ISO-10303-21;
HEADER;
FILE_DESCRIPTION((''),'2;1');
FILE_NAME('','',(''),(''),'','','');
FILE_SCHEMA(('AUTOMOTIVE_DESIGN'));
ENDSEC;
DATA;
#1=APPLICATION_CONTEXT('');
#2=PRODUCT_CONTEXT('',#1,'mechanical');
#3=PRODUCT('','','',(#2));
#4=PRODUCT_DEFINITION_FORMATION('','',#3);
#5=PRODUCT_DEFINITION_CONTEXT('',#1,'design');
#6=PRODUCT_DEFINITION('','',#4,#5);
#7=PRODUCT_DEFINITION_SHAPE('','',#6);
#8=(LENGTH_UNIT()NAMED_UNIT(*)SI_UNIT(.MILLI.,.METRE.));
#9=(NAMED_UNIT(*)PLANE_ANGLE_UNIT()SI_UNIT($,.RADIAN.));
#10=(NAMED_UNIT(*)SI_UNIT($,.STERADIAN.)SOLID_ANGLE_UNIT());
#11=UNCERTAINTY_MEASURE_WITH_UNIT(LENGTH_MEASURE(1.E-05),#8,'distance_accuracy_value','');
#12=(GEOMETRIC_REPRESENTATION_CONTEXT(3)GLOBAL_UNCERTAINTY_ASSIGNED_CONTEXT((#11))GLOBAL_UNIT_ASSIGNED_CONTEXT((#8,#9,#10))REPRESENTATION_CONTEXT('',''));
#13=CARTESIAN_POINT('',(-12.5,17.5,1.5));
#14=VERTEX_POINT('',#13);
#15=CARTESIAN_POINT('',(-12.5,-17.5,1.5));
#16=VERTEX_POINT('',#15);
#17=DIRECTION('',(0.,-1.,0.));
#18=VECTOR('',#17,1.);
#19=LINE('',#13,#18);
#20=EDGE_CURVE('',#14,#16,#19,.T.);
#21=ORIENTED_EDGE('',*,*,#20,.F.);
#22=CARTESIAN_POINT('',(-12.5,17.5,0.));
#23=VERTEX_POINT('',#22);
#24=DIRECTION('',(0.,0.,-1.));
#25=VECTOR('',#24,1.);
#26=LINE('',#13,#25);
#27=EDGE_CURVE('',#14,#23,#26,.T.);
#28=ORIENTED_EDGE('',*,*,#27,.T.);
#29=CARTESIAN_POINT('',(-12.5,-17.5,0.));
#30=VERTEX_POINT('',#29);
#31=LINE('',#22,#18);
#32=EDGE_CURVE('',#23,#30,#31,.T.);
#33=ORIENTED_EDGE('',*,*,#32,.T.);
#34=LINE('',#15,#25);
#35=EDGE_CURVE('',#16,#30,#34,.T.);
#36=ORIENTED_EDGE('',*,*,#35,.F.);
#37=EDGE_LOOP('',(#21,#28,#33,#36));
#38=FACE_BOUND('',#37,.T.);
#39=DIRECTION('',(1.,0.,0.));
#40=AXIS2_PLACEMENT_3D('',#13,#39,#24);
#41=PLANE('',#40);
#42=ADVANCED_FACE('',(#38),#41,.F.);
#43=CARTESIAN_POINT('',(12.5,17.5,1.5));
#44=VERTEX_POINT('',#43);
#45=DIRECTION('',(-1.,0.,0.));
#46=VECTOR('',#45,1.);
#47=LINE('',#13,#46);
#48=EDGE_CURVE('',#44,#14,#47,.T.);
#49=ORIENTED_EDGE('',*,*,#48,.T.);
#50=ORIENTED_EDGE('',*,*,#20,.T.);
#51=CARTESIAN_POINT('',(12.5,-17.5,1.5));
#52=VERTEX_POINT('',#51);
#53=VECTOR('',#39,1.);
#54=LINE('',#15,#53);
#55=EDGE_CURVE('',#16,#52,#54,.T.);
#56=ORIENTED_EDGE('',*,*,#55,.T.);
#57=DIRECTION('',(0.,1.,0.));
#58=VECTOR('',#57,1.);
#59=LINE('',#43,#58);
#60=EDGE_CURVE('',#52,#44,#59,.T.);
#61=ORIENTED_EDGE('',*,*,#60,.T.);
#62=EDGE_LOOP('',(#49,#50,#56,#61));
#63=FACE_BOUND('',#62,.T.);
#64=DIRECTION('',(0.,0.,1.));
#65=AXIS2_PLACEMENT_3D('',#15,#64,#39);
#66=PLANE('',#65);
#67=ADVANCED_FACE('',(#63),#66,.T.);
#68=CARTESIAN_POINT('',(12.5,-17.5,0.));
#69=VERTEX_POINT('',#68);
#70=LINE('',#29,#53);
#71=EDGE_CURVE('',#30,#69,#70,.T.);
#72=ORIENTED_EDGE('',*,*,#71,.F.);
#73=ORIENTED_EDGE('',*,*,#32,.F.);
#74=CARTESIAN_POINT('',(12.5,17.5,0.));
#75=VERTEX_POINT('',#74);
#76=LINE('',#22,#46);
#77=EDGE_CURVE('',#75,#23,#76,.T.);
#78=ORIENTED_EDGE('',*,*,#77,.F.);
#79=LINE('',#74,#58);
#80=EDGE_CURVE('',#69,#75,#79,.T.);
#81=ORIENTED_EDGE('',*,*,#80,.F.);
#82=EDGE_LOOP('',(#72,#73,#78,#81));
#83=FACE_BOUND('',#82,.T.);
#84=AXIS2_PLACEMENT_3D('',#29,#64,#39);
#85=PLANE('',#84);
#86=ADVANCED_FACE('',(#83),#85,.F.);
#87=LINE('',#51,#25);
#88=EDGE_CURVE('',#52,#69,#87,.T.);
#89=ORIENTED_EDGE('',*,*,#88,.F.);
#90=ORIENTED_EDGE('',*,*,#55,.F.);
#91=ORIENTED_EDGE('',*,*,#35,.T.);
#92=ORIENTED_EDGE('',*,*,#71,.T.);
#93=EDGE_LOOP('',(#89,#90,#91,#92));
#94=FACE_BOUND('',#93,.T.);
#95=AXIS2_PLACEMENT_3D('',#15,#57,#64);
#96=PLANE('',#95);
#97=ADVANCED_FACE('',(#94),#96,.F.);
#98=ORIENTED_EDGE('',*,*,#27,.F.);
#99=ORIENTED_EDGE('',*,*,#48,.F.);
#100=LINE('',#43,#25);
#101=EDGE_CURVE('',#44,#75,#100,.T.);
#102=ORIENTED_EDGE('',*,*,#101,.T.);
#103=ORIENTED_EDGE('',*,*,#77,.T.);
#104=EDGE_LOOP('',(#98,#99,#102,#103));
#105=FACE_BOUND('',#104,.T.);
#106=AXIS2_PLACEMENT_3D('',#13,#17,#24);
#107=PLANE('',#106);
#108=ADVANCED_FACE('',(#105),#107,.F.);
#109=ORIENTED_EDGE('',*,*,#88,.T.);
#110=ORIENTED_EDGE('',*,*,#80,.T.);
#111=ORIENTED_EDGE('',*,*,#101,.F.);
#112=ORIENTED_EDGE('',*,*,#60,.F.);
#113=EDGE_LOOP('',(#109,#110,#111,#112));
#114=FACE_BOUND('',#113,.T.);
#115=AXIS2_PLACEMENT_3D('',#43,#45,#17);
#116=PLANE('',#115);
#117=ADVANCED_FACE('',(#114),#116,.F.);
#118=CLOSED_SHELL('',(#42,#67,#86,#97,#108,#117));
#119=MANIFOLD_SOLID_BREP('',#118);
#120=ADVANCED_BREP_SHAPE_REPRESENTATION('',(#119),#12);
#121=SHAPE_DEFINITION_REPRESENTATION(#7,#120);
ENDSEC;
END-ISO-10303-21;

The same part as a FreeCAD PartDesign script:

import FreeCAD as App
import Part
import Sketcher

V = App.Vector
Q = App.Units.Quantity


def add_polygon(sketch, points):
    """Adds a closed chain of lines whose ends are joined by coincident constraints."""
    first, n = sketch.GeometryCount, len(points)
    for a, b in zip(points, points[1:] + points[:1]):
        sketch.addGeometry(Part.LineSegment(App.Vector(*a, 0), App.Vector(*b, 0)), False)
    for i in range(n):
        sketch.addConstraint(Sketcher.Constraint("Coincident", first + i, 2, first + (i + 1) % n, 1))

doc = App.newDocument("Part")
body = doc.addObject("PartDesign::Body", "Body")

# Sketch on XY plane
sketch1 = doc.addObject("Sketcher::SketchObject", "Sketch")
body.addObject(sketch1)
sketch1.AttachmentSupport = (doc.XY_Plane, [""])
sketch1.MapMode = "FlatFace"
add_polygon(sketch1, [(-12, 18), (-12, -18), (12, -18), (12, 18)])  # lines 0-3
sketch1.addConstraint([
    Sketcher.Constraint("Vertical", 0),
    Sketcher.Constraint("Horizontal", 1),
    Sketcher.Constraint("Vertical", 2),
    Sketcher.Constraint("Horizontal", 3),
    Sketcher.Constraint("Symmetric", 0, 2, 2, 2, -1, 1),
    Sketcher.Constraint("DistanceX", 1, 1, 1, 2, Q("25 mm")),
    Sketcher.Constraint("DistanceY", 0, 2, 0, 1, Q("35 mm")),
])
pad1 = doc.addObject("PartDesign::Pad", "Pad")
body.addObject(pad1)
pad1.Profile = sketch1
pad1.Length = 1.5

doc.recompute()
